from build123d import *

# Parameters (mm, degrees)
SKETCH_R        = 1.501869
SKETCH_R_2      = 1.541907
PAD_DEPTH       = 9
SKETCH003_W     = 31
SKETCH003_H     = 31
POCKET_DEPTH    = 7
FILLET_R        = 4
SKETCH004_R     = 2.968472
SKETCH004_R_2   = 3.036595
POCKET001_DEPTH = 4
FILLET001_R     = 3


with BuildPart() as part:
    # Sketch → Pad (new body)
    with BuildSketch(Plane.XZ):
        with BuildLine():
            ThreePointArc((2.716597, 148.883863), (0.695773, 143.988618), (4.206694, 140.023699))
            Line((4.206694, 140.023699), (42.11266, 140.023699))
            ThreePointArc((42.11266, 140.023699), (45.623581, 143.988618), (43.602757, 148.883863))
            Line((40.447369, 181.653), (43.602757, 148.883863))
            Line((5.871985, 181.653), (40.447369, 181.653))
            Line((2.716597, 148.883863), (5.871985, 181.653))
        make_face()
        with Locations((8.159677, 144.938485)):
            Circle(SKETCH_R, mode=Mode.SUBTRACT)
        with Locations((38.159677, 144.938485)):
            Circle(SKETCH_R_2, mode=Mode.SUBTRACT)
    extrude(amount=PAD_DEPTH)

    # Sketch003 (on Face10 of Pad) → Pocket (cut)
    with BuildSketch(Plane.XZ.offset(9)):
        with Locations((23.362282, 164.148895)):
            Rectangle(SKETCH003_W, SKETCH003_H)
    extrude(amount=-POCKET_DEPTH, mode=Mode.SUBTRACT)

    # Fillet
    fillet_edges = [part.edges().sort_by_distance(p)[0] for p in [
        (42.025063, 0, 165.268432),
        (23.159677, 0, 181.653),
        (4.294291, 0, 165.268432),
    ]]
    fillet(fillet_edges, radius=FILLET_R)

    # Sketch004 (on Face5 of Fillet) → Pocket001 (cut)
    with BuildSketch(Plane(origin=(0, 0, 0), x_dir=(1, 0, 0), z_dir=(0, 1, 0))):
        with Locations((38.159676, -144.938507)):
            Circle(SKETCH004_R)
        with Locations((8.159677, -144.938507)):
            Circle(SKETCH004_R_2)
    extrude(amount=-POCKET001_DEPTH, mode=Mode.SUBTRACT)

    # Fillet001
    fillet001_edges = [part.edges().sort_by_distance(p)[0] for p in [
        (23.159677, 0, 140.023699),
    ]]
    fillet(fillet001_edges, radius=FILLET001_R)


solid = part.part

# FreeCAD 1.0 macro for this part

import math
import FreeCAD as App
import Part
import Sketcher
from FreeCAD import Vector


def edges_at(feature, points):
    """Names of the edges that pass closest to the given points."""
    edges = feature.Shape.Edges
    near = lambda p: min(range(len(edges)), key=lambda i: edges[i].distToShape(Part.Vertex(*p))[0])
    return sorted({f"Edge{near(p) + 1}" for p in points})

doc = App.newDocument("Part")
params = doc.addObject("Spreadsheet::Sheet", "Params")
for row, (alias, value) in enumerate([
    ("sketch1_radius", "5 mm"),
    ("pad1_length", "9 mm"),
    ("sketch2_width", "31 mm"),
    ("pocket1_length", "7 mm"),
    ("fillet_radius", "4 mm"),
    ("pocket2_length", "4 mm"),
    ("fillet2_radius", "3 mm"),
], start=1):
    params.set(f"A{row}", alias)
    params.set(f"B{row}", "=" + value)
    params.setAlias(f"B{row}", alias)

body = doc.addObject("PartDesign::Body", "Body")

sketch1 = body.newObject("Sketcher::SketchObject", "Sketch")
sketch1.AttachmentSupport = (doc.getObject("XZ_Plane"), [""])
sketch1.MapMode = "FlatFace"
sketch1.addGeometry([
    Part.ArcOfCircle(Part.Circle(Vector(5.6, 144.8, 0), Vector(0, 0, 1), 5), math.radians(126), math.radians(254)),
    Part.LineSegment(Vector(4.2, 140, 0), Vector(42.1, 140, 0)),
    Part.ArcOfCircle(Part.Circle(Vector(40.7, 144.8, 0), Vector(0, 0, 1), 5), math.radians(-74), math.radians(54)),
    Part.LineSegment(Vector(43.6, 148.9, 0), Vector(40.4, 181.7, 0)),
    Part.LineSegment(Vector(40.4, 181.7, 0), Vector(5.9, 181.7, 0)),
    Part.LineSegment(Vector(5.9, 181.7, 0), Vector(2.7, 148.9, 0)),
    Part.Circle(Vector(8.2, 144.9, 0), Vector(0, 0, 1), 1.5),
    Part.Circle(Vector(38.2, 144.9, 0), Vector(0, 0, 1), 1.5),
], False)
sketch1.addConstraint([
    Sketcher.Constraint("Coincident", 0, 2, 1, 1),
    Sketcher.Constraint("Coincident", 1, 2, 2, 1),
    Sketcher.Constraint("Coincident", 2, 2, 3, 1),
    Sketcher.Constraint("Coincident", 3, 2, 4, 1),
    Sketcher.Constraint("Coincident", 4, 2, 5, 1),
    Sketcher.Constraint("Coincident", 5, 2, 0, 1),
    Sketcher.Constraint("Horizontal", 1),
    Sketcher.Constraint("Horizontal", 4),
    Sketcher.Constraint("Equal", 0, 2),
    Sketcher.Constraint("Horizontal", 0, 3, 2, 3),
    Sketcher.Constraint("Horizontal", 6, 3, 7, 3),
    Sketcher.Constraint("Horizontal", 2, 2, 5, 2),
    Sketcher.Constraint("Equal", 3, 5),
    Sketcher.Constraint("Radius", 0, 5.0),
    Sketcher.Constraint("DistanceX", 6, 3, 7, 3, 30.0),
    Sketcher.Constraint("Diameter", 6, 3.003738),
    Sketcher.Constraint("Diameter", 7, 3.083814),
    Sketcher.Constraint("DistanceY", -1, 1, 3, 2, 181.653),
    Sketcher.Constraint("DistanceY", -1, 1, 0, 2, 140.023699),
    Sketcher.Constraint("DistanceX", 0, 3, 2, 3, 35.066299),
    Sketcher.Constraint("DistanceX", 1, 1, 1, 2, 37.905966),
    Sketcher.Constraint("DistanceX", 4, 2, 4, 1, 34.575384),
    Sketcher.Constraint("DistanceX", -1, 1, 1, 2, 42.11266),
    Sketcher.Constraint("DistanceX", 0, 3, 6, 3, 2.533149),
    Sketcher.Constraint("DistanceX", 2, 3, 2, 2, 2.909931),
    Sketcher.Constraint("DistanceY", 6, 3, 5, 2, 3.945378),
])
sketch1.setExpression("Constraints[13]", "Params.sketch1_radius")
pad1 = body.newObject("PartDesign::Pad", "Pad")
pad1.Profile = sketch1
pad1.setExpression("Length", "Params.pad1_length")

sketch2 = body.newObject("Sketcher::SketchObject", "Sketch001")
sketch2.AttachmentSupport = (doc.getObject("XZ_Plane"), [""])
sketch2.MapMode = "FlatFace"
sketch2.AttachmentOffset = App.Placement(Vector(0, 0, 9), App.Rotation())
sketch2.addGeometry([
    Part.LineSegment(Vector(8, 180, 0), Vector(8, 149, 0)),
    Part.LineSegment(Vector(8, 149, 0), Vector(39, 149, 0)),
    Part.LineSegment(Vector(39, 149, 0), Vector(39, 180, 0)),
    Part.LineSegment(Vector(39, 180, 0), Vector(8, 180, 0)),
], False)
sketch2.addConstraint([
    Sketcher.Constraint("Coincident", 0, 2, 1, 1),
    Sketcher.Constraint("Coincident", 1, 2, 2, 1),
    Sketcher.Constraint("Coincident", 2, 2, 3, 1),
    Sketcher.Constraint("Coincident", 3, 2, 0, 1),
    Sketcher.Constraint("Vertical", 0),
    Sketcher.Constraint("Horizontal", 1),
    Sketcher.Constraint("Vertical", 2),
    Sketcher.Constraint("Horizontal", 3),
    Sketcher.Constraint("Equal", 3, 0),
    Sketcher.Constraint("DistanceX", 1, 1, 1, 2, 31.0),
    Sketcher.Constraint("DistanceX", -1, 1, 0, 2, 7.862282),
    Sketcher.Constraint("DistanceY", -1, 1, 0, 2, 148.648895),
])
sketch2.setExpression("Constraints[9]", "Params.sketch2_width")
pocket1 = body.newObject("PartDesign::Pocket", "Pocket")
pocket1.Profile = sketch2
pocket1.setExpression("Length", "Params.pocket1_length")
doc.recompute()

fillet = body.newObject("PartDesign::Fillet", "Fillet")
fillet.Base = (pocket1, edges_at(pocket1, [(42.025, 0, 165.268), (23.16, 0, 181.653), (4.294, 0, 165.268)]))
fillet.setExpression("Radius", "Params.fillet_radius")

sketch3 = body.newObject("Sketcher::SketchObject", "Sketch002")
sketch3.AttachmentSupport = (doc.getObject("XZ_Plane"), [""])
sketch3.MapMode = "FlatFace"
sketch3.addGeometry([
    Part.Circle(Vector(38.2, 144.9, 0), Vector(0, 0, 1), 3),
    Part.Circle(Vector(8.2, 144.9, 0), Vector(0, 0, 1), 3),
], False)
sketch3.addConstraint([
    Sketcher.Constraint("Horizontal", 0, 3, 1, 3),
    Sketcher.Constraint("DistanceX", 1, 3, 0, 3, 29.999999),
    Sketcher.Constraint("Diameter", 1, 6.07319),
    Sketcher.Constraint("Diameter", 0, 5.936944),
    Sketcher.Constraint("DistanceX", -1, 1, 0, 3, 38.159676),
    Sketcher.Constraint("DistanceY", -1, 1, 0, 3, 144.938507),
])
pocket2 = body.newObject("PartDesign::Pocket", "Pocket001")
pocket2.Profile = sketch3
pocket2.setExpression("Length", "Params.pocket2_length")
pocket2.Reversed = True
doc.recompute()

fillet2 = body.newObject("PartDesign::Fillet", "Fillet001")
fillet2.Base = (pocket2, edges_at(pocket2, [(23.16, 0, 140.024)]))
fillet2.setExpression("Radius", "Params.fillet2_radius")

doc.recompute()
